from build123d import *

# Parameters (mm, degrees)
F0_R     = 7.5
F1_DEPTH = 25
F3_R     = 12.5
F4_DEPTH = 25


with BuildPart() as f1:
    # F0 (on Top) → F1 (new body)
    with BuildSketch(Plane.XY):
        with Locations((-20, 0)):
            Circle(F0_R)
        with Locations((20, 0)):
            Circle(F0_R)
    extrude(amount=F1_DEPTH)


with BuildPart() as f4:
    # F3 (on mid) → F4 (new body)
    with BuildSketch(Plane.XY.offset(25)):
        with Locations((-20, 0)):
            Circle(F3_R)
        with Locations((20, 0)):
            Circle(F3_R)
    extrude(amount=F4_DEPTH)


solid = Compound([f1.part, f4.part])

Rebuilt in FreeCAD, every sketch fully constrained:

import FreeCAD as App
import Part
import Sketcher
Q = App.Units.Quantity

doc = App.newDocument("Part")
body = doc.addObject("PartDesign::Body", "Body")
body.AllowCompound = True

# Sketch on XY plane
sketch1 = doc.addObject("Sketcher::SketchObject", "Sketch")
body.addObject(sketch1)
sketch1.AttachmentSupport = (doc.XY_Plane, [""])
sketch1.MapMode = "FlatFace"
sketch1.addGeometry(Part.Circle(App.Vector(-20, 0, 0), App.Vector(0, 0, 1), 8), False)
sketch1.addGeometry(Part.Circle(App.Vector(20, 0, 0), App.Vector(0, 0, 1), 8), False)
sketch1.addConstraint(Sketcher.Constraint("Equal", 0, 1))
sketch1.addConstraint(Sketcher.Constraint("Symmetric", 0, 3, 1, 3, -1, 1))
sketch1.addConstraint(Sketcher.Constraint("PointOnObject", 0, 3, -1))
sketch1.addConstraint(Sketcher.Constraint("Diameter", 0, Q("15 mm")))
sketch1.addConstraint(Sketcher.Constraint("DistanceX", 0, 3, -1, 1, Q("20 mm")))
pad1 = doc.addObject("PartDesign::Pad", "Pad")
body.addObject(pad1)
pad1.Profile = sketch1
pad1.Length = 25
body2 = doc.addObject("PartDesign::Body", "Body001")
body2.AllowCompound = True

# Sketch on XY plane
sketch2 = doc.addObject("Sketcher::SketchObject", "Sketch001")
body2.addObject(sketch2)
sketch2.AttachmentSupport = (doc.getObject("XY_Plane001"), [""])
sketch2.MapMode = "FlatFace"
sketch2.AttachmentOffset = App.Placement(App.Vector(0, 0, 25), App.Rotation())
sketch2.addGeometry(Part.Circle(App.Vector(-20, 0, 0), App.Vector(0, 0, 1), 12), False)
sketch2.addGeometry(Part.Circle(App.Vector(20, 0, 0), App.Vector(0, 0, 1), 12), False)
sketch2.addConstraint(Sketcher.Constraint("Equal", 0, 1))
sketch2.addConstraint(Sketcher.Constraint("Symmetric", 0, 3, 1, 3, -1, 1))
sketch2.addConstraint(Sketcher.Constraint("PointOnObject", 0, 3, -1))
sketch2.addConstraint(Sketcher.Constraint("Diameter", 0, Q("25 mm")))
sketch2.addConstraint(Sketcher.Constraint("DistanceX", 0, 3, -1, 1, Q("20 mm")))
pad2 = doc.addObject("PartDesign::Pad", "Pad001")
body2.addObject(pad2)
pad2.Profile = sketch2
pad2.Length = 25

doc.recompute()
